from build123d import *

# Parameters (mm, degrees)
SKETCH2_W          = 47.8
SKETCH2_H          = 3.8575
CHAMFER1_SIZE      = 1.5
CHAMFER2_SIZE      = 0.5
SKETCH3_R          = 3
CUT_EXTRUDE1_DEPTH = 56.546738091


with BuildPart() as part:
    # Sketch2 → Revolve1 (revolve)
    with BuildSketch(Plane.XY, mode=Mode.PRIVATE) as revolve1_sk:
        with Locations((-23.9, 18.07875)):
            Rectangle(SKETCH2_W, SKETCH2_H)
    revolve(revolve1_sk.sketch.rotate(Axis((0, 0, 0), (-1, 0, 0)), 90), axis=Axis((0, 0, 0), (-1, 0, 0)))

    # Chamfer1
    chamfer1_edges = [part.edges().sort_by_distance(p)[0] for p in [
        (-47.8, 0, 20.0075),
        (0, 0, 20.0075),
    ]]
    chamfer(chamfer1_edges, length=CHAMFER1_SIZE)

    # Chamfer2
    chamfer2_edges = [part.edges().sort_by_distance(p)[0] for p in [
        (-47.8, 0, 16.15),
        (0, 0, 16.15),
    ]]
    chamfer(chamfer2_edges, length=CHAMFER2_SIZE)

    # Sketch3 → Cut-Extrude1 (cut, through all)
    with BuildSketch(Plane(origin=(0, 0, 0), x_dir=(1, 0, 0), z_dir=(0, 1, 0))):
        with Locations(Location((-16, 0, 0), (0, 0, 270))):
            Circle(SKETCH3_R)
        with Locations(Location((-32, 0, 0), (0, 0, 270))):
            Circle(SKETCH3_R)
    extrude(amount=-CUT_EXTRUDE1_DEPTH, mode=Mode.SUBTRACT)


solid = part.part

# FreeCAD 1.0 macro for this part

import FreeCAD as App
import Part
import Sketcher

V = App.Vector


def edges_at(feature, points):
    """Names of the edges that pass closest to the given points."""
    edges = feature.Shape.Edges
    near = lambda p: min(range(len(edges)), key=lambda i: edges[i].distToShape(Part.Vertex(*p))[0])
    return sorted({f"Edge{near(p) + 1}" for p in points})

doc = App.newDocument("Part")
body = doc.addObject("PartDesign::Body", "Body")

# Sketch on XY plane
sketch1 = body.newObject("Sketcher::SketchObject", "Sketch")
sketch1.AttachmentSupport = (doc.getObject("XY_Plane"), [""])
sketch1.MapMode = "FlatFace"
sketch1.addGeometry([
    Part.LineSegment(V(-47.8, 20, 0), V(-47.8, 16.1, 0)),
    Part.LineSegment(V(-47.8, 16.1, 0), V(0, 16.1, 0)),
    Part.LineSegment(V(0, 16.1, 0), V(0, 20, 0)),
    Part.LineSegment(V(0, 20, 0), V(-47.8, 20, 0)),
], False)
sketch1.addConstraint([
    Sketcher.Constraint("Coincident", 0, 2, 1, 1),
    Sketcher.Constraint("Coincident", 1, 2, 2, 1),
    Sketcher.Constraint("Coincident", 2, 2, 3, 1),
    Sketcher.Constraint("Coincident", 3, 2, 0, 1),
    Sketcher.Constraint("Vertical", 0),
    Sketcher.Constraint("Horizontal", 1),
    Sketcher.Constraint("Vertical", 2),
    Sketcher.Constraint("Horizontal", 3),
    Sketcher.Constraint("PointOnObject", 1, 2, -2),
    Sketcher.Constraint("DistanceX", 1, 1, 1, 2, 47.8),
    Sketcher.Constraint("DistanceY", -1, 1, 0, 2, 16.15),
    Sketcher.Constraint("DistanceY", 0, 2, 0, 1, 3.8575),
])
revolution = body.newObject("PartDesign::Revolution", "Revolution")
revolution.Profile = sketch1
revolution.ReferenceAxis = (sketch1, ["H_Axis"])
revolution.Angle = 360
doc.recompute()

chamfer = body.newObject("PartDesign::Chamfer", "Chamfer")
chamfer.Base = (revolution, edges_at(revolution, [(-47.8, 0, 20.008), (0, 0, 20.008)]))
chamfer.Size = 1.5
doc.recompute()

chamfer2 = body.newObject("PartDesign::Chamfer", "Chamfer001")
chamfer2.Base = (chamfer, edges_at(chamfer, [(-47.8, 0, 16.15), (0, 0, 16.15)]))
chamfer2.Size = 0.5

# Sketch on XZ plane
sketch2 = body.newObject("Sketcher::SketchObject", "Sketch001")
sketch2.AttachmentSupport = (doc.getObject("XZ_Plane"), [""])
sketch2.MapMode = "FlatFace"
sketch2.addGeometry([
    Part.Circle(V(-16, 0, 0), V(0, 0, 1), 3),
    Part.Circle(V(-32, 0, 0), V(0, 0, 1), 3),
], False)
sketch2.addConstraint([
    Sketcher.Constraint("Equal", 0, 1),
    Sketcher.Constraint("PointOnObject", 0, 3, -1),
    Sketcher.Constraint("PointOnObject", 1, 3, -1),
    Sketcher.Constraint("Diameter", 0, 6.0),
    Sketcher.Constraint("DistanceX", 0, 3, -1, 1, 16.0),
    Sketcher.Constraint("DistanceX", 1, 3, -1, 1, 32.0),
])
pocket1 = body.newObject("PartDesign::Pocket", "Pocket")
pocket1.Profile = sketch2
pocket1.Type = "ThroughAll"
pocket1.Reversed = True

doc.recompute()
